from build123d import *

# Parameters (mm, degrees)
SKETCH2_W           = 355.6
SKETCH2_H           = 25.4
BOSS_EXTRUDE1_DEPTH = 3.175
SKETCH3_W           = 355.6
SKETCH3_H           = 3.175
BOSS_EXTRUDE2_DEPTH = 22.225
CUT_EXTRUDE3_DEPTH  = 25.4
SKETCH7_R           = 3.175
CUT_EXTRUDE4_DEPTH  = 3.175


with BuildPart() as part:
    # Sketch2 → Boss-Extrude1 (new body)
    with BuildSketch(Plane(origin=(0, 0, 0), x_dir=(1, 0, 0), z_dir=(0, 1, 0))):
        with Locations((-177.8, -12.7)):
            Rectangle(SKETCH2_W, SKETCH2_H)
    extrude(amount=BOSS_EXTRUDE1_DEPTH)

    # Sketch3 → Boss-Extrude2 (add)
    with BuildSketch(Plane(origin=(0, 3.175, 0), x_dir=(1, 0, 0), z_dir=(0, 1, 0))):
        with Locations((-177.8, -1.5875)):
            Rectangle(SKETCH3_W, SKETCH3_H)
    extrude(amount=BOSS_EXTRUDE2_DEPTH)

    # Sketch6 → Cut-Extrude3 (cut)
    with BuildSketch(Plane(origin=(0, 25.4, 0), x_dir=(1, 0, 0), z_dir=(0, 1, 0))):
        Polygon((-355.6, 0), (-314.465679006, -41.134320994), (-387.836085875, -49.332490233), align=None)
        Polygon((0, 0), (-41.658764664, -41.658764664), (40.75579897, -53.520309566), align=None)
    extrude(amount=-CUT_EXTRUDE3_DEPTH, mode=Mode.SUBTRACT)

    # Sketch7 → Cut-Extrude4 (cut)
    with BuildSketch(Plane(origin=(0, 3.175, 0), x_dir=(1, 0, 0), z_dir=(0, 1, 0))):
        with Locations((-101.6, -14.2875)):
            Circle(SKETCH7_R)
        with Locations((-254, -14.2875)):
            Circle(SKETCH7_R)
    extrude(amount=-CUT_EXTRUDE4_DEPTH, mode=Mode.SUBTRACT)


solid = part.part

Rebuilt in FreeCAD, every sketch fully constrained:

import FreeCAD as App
import Part
import Sketcher

V = App.Vector
Q = App.Units.Quantity

doc = App.newDocument("Part")
body = doc.addObject("PartDesign::Body", "Body")

sketch1 = body.newObject("Sketcher::SketchObject", "Sketch")
sketch1.AttachmentSupport = (doc.getObject("XZ_Plane"), [""])
sketch1.MapMode = "FlatFace"
sketch1.addGeometry([
    Part.LineSegment(V(-356, 0, 0), V(-356, 25, 0)),
    Part.LineSegment(V(-356, 25, 0), V(0, 25, 0)),
    Part.LineSegment(V(0, 25, 0), V(0, 0, 0)),
    Part.LineSegment(V(0, 0, 0), V(-356, 0, 0)),
], False)
sketch1.addConstraint([
    Sketcher.Constraint("Coincident", 0, 2, 1, 1),
    Sketcher.Constraint("Coincident", 1, 2, 2, 1),
    Sketcher.Constraint("Coincident", 2, 2, 3, 1),
    Sketcher.Constraint("Coincident", 3, 2, 0, 1),
    Sketcher.Constraint("Vertical", 0),
    Sketcher.Constraint("Horizontal", 1),
    Sketcher.Constraint("Vertical", 2),
    Sketcher.Constraint("Horizontal", 3),
    Sketcher.Constraint("Coincident", 2, 2, -1, 1),
    Sketcher.Constraint("DistanceX", 1, 1, 1, 2, Q("14 in")),
    Sketcher.Constraint("DistanceY", 0, 1, 0, 2, Q("1 in")),
])
pad1 = body.newObject("PartDesign::Pad", "Pad")
pad1.Profile = sketch1
pad1.Length = Q("0.125 in")
pad1.Reversed = True

sketch2 = body.newObject("Sketcher::SketchObject", "Sketch001")
sketch2.AttachmentSupport = (doc.getObject("XZ_Plane"), [""])
sketch2.MapMode = "FlatFace"
sketch2.AttachmentOffset = App.Placement(V(0, 0, -0.125 * 25.4), App.Rotation())
sketch2.addGeometry([
    Part.LineSegment(V(-355.6, 0, 0), V(-355.6, 3.2, 0)),
    Part.LineSegment(V(-355.6, 3.2, 0), V(0, 3.2, 0)),
    Part.LineSegment(V(0, 3.2, 0), V(0, 0, 0)),
    Part.LineSegment(V(0, 0, 0), V(-355.6, 0, 0)),
], False)
sketch2.addConstraint([
    Sketcher.Constraint("Coincident", 0, 2, 1, 1),
    Sketcher.Constraint("Coincident", 1, 2, 2, 1),
    Sketcher.Constraint("Coincident", 2, 2, 3, 1),
    Sketcher.Constraint("Coincident", 3, 2, 0, 1),
    Sketcher.Constraint("Vertical", 0),
    Sketcher.Constraint("Horizontal", 1),
    Sketcher.Constraint("Vertical", 2),
    Sketcher.Constraint("Horizontal", 3),
    Sketcher.Constraint("Coincident", 2, 2, -1, 1),
    Sketcher.Constraint("DistanceX", 1, 1, 1, 2, Q("14 in")),
    Sketcher.Constraint("DistanceY", 0, 1, 0, 2, Q("0.125 in")),
])
pad2 = body.newObject("PartDesign::Pad", "Pad001")
pad2.Profile = sketch2
pad2.Length = Q("0.875 in")
pad2.Reversed = True

sketch3 = body.newObject("Sketcher::SketchObject", "Sketch002")
sketch3.AttachmentSupport = (doc.getObject("XZ_Plane"), [""])
sketch3.MapMode = "FlatFace"
sketch3.AttachmentOffset = App.Placement(V(0, 0, -1 * 25.4), App.Rotation())
sketch3.addGeometry([
    Part.LineSegment(V(-314, 41, 0), V(-356, 0, 0)),
    Part.LineSegment(V(-356, 0, 0), V(-388, 49, 0)),
    Part.LineSegment(V(-388, 49, 0), V(-314, 41, 0)),
    Part.LineSegment(V(0, 0, 0), V(-42, 42, 0)),
    Part.LineSegment(V(-42, 42, 0), V(41, 54, 0)),
    Part.LineSegment(V(41, 54, 0), V(0, 0, 0)),
], False)
sketch3.addConstraint([
    Sketcher.Constraint("Coincident", 0, 2, 1, 1),
    Sketcher.Constraint("Coincident", 1, 2, 2, 1),
    Sketcher.Constraint("Coincident", 2, 2, 0, 1),
    Sketcher.Constraint("Coincident", 3, 2, 4, 1),
    Sketcher.Constraint("Coincident", 4, 2, 5, 1),
    Sketcher.Constraint("Coincident", 5, 2, 3, 1),
    Sketcher.Constraint("Coincident", 5, 2, -1, 1),
    Sketcher.Constraint("PointOnObject", 0, 2, -1),
    Sketcher.Constraint("Perpendicular", 0, 3),
    Sketcher.Constraint("DistanceX", 0, 2, -1, 1, Q("14 in")),
    Sketcher.Constraint("Angle", 0, Q("-135 deg")),
    Sketcher.Constraint("DistanceX", -1, 1, 4, 2, Q("40.755799 mm")),
    Sketcher.Constraint("Distance", 3, Q("58.91439 mm")),
    Sketcher.Constraint("Distance", 5, Q("67.27153 mm")),
    Sketcher.Constraint("DistanceY", -1, 1, 1, 2, Q("49.33249 mm")),
    Sketcher.Constraint("DistanceX", 2, 2, -1, 1, Q("314.465679 mm")),
    Sketcher.Constraint("DistanceX", 1, 2, 3, 2, Q("346.177321 mm")),
])
pocket1 = body.newObject("PartDesign::Pocket", "Pocket")
pocket1.Profile = sketch3
pocket1.Length = Q("1 in")
pocket1.Reversed = True

sketch4 = body.newObject("Sketcher::SketchObject", "Sketch003")
sketch4.AttachmentSupport = (doc.getObject("XZ_Plane"), [""])
sketch4.MapMode = "FlatFace"
sketch4.AttachmentOffset = App.Placement(V(0, 0, -0.125 * 25.4), App.Rotation())
sketch4.addGeometry([
    Part.Circle(V(-101.6, 14.3, 0), V(0, 0, 1), 3.2),
    Part.Circle(V(-254, 14.3, 0), V(0, 0, 1), 3.2),
], False)
sketch4.addConstraint([
    Sketcher.Constraint("Equal", 0, 1),
    Sketcher.Constraint("Horizontal", 0, 3, 1, 3),
    Sketcher.Constraint("Diameter", 0, Q("0.25 in")),
    Sketcher.Constraint("DistanceX", 0, 3, -1, 1, Q("4 in")),
    Sketcher.Constraint("DistanceX", 1, 3, -1, 1, Q("10 in")),
    Sketcher.Constraint("DistanceY", -1, 1, 0, 3, Q("0.5625 in")),
])
pocket2 = body.newObject("PartDesign::Pocket", "Pocket001")
pocket2.Profile = sketch4
pocket2.Length = Q("0.125 in")
pocket2.Reversed = True

doc.recompute()
